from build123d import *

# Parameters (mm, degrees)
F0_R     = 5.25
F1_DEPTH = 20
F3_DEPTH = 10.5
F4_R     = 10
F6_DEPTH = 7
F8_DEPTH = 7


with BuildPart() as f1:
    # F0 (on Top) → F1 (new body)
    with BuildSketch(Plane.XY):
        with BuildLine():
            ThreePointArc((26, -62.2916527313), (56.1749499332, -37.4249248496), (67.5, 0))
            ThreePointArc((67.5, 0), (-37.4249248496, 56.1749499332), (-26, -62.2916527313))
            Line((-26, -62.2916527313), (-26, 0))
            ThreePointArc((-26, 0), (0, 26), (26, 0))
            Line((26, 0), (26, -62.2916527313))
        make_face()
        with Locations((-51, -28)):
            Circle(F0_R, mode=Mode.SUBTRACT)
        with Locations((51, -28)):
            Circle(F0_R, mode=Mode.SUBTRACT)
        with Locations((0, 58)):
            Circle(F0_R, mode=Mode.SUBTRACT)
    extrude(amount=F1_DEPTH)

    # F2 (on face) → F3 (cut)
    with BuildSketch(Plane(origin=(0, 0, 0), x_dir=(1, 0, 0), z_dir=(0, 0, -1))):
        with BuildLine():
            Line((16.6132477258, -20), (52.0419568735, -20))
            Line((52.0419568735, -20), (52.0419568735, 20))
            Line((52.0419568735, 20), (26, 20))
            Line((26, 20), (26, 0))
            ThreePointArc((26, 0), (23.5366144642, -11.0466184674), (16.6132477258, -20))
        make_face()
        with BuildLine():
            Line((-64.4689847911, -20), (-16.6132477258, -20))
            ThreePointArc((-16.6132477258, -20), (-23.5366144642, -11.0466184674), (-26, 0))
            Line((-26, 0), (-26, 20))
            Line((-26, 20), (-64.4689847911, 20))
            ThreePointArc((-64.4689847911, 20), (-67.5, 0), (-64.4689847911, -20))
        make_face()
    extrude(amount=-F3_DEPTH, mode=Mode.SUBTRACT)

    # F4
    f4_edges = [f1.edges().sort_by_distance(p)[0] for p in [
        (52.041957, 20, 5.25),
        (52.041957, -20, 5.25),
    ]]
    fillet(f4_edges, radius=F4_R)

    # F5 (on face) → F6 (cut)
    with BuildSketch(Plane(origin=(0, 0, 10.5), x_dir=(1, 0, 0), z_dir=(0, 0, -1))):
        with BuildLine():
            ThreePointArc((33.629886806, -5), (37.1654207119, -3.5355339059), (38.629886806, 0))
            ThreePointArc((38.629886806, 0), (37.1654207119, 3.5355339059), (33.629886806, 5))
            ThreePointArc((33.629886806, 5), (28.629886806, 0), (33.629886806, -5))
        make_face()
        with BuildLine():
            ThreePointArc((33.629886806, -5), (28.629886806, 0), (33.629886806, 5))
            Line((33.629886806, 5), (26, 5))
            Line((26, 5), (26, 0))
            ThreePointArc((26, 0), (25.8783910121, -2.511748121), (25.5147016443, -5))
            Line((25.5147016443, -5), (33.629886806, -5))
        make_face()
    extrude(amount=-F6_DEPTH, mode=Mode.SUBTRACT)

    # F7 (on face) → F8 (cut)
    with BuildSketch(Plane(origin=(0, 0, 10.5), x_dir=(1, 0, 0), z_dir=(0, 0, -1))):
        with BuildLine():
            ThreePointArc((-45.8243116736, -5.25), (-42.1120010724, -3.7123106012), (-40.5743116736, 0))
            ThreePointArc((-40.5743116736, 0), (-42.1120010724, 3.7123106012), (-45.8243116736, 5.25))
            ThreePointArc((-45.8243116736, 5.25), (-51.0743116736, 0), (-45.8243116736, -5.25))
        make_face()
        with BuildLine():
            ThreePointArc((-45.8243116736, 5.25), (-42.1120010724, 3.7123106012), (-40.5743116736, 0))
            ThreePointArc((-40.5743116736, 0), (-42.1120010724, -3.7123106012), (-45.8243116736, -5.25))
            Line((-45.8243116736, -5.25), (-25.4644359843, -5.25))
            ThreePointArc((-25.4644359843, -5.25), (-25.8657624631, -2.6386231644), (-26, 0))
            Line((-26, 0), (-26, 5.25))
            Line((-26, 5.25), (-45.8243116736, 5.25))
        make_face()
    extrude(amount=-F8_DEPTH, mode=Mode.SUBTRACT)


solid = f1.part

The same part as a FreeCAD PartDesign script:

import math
import FreeCAD as App
import Part
import Sketcher

V = App.Vector


def edges_at(feature, points):
    """Names of the edges that pass closest to the given points."""
    edges = feature.Shape.Edges
    near = lambda p: min(range(len(edges)), key=lambda i: edges[i].distToShape(Part.Vertex(*p))[0])
    return sorted({f"Edge{near(p) + 1}" for p in points})

doc = App.newDocument("Part")
body = doc.addObject("PartDesign::Body", "Body")

# Sketch on XY plane
sketch1 = body.newObject("Sketcher::SketchObject", "Sketch")
sketch1.AttachmentSupport = (doc.getObject("XY_Plane"), [""])
sketch1.MapMode = "FlatFace"
sketch1.addGeometry(Part.ArcOfCircle(Part.Circle(V(0, 0, 0), V(0, 0, 1), 68), math.radians(-67), math.radians(0)), False)
sketch1.addGeometry(Part.ArcOfCircle(Part.Circle(V(0, 0, 0), V(0, 0, 1), 68), math.radians(0), math.radians(247)), False)
sketch1.addGeometry(Part.LineSegment(V(-26, -62, 0), V(-26, 0, 0)), False)
sketch1.addGeometry(Part.ArcOfCircle(Part.Circle(V(0, 0, 0), V(0, 0, 1), 26), math.radians(0), math.radians(180)), False)
sketch1.addGeometry(Part.LineSegment(V(26, 0, 0), V(26, -62, 0)), False)
sketch1.addGeometry(Part.Circle(V(-51, -28, 0), V(0, 0, 1), 5), False)
sketch1.addGeometry(Part.Circle(V(51, -28, 0), V(0, 0, 1), 5), False)
sketch1.addGeometry(Part.Circle(V(0, 58, 0), V(0, 0, 1), 5), False)
sketch1.addConstraint(Sketcher.Constraint("Tangent", 0, 2, 1, 1))
sketch1.addConstraint(Sketcher.Constraint("Coincident", 1, 2, 2, 1))
sketch1.addConstraint(Sketcher.Constraint("Tangent", 2, 2, 3, 2))
sketch1.addConstraint(Sketcher.Constraint("Tangent", 3, 1, 4, 1))
sketch1.addConstraint(Sketcher.Constraint("Coincident", 4, 2, 0, 1))
sketch1.addConstraint(Sketcher.Constraint("Vertical", 2))
sketch1.addConstraint(Sketcher.Constraint("Vertical", 4))
sketch1.addConstraint(Sketcher.Constraint("Coincident", 0, 3, -1, 1))
sketch1.addConstraint(Sketcher.Constraint("Coincident", 3, 3, -1, 1))
sketch1.addConstraint(Sketcher.Constraint("Equal", 0, 1))
sketch1.addConstraint(Sketcher.Constraint("Equal", 5, 6))
sketch1.addConstraint(Sketcher.Constraint("Equal", 6, 7))
sketch1.addConstraint(Sketcher.Constraint("Symmetric", 5, 3, 6, 3, -2))
sketch1.addConstraint(Sketcher.Constraint("PointOnObject", 7, 3, -2))
sketch1.addConstraint(Sketcher.Constraint("PointOnObject", 0, 2, -1))
sketch1.addConstraint(Sketcher.Constraint("Radius", 3, 26.0))
sketch1.addConstraint(Sketcher.Constraint("Diameter", 5, 10.5))
sketch1.addConstraint(Sketcher.Constraint("Radius", 0, 67.5))
sketch1.addConstraint(Sketcher.Constraint("DistanceX", 5, 3, -1, 1, 51.0))
sketch1.addConstraint(Sketcher.Constraint("DistanceY", 5, 3, -1, 1, 28.0))
sketch1.addConstraint(Sketcher.Constraint("DistanceY", -1, 1, 7, 3, 58.0))
pad1 = body.newObject("PartDesign::Pad", "Pad")
pad1.Profile = sketch1
pad1.Length = 20

# Sketch on XY plane
sketch2 = body.newObject("Sketcher::SketchObject", "Sketch001")
sketch2.AttachmentSupport = (doc.getObject("XY_Plane"), [""])
sketch2.MapMode = "FlatFace"
sketch2.addGeometry(Part.LineSegment(V(17, 20, 0), V(52, 20, 0)), False)
sketch2.addGeometry(Part.LineSegment(V(52, 20, 0), V(52, -20, 0)), False)
sketch2.addGeometry(Part.LineSegment(V(52, -20, 0), V(26, -20, 0)), False)
sketch2.addGeometry(Part.LineSegment(V(26, -20, 0), V(26, 0, 0)), False)
sketch2.addGeometry(Part.ArcOfCircle(Part.Circle(V(0, 0, 0), V(0, 0, 1), 26), math.radians(0), math.radians(50)), False)
sketch2.addGeometry(Part.LineSegment(V(-64, 20, 0), V(-17, 20, 0)), False)
sketch2.addGeometry(Part.ArcOfCircle(Part.Circle(V(0, 0, 0), V(0, 0, 1), 26), math.radians(130), math.radians(180)), False)
sketch2.addGeometry(Part.LineSegment(V(-26, 0, 0), V(-26, -20, 0)), False)
sketch2.addGeometry(Part.LineSegment(V(-26, -20, 0), V(-64, -20, 0)), False)
sketch2.addGeometry(Part.ArcOfCircle(Part.Circle(V(0, 0, 0), V(0, 0, 1), 67), math.radians(163), math.radians(197)), False)
sketch2.addConstraint(Sketcher.Constraint("Coincident", 0, 2, 1, 1))
sketch2.addConstraint(Sketcher.Constraint("Coincident", 1, 2, 2, 1))
sketch2.addConstraint(Sketcher.Constraint("Coincident", 2, 2, 3, 1))
sketch2.addConstraint(Sketcher.Constraint("Tangent", 3, 2, 4, 1))
sketch2.addConstraint(Sketcher.Constraint("Coincident", 4, 2, 0, 1))
sketch2.addConstraint(Sketcher.Constraint("Coincident", 5, 2, 6, 1))
sketch2.addConstraint(Sketcher.Constraint("Tangent", 6, 2, 7, 1))
sketch2.addConstraint(Sketcher.Constraint("Coincident", 7, 2, 8, 1))
sketch2.addConstraint(Sketcher.Constraint("Coincident", 8, 2, 9, 2))
sketch2.addConstraint(Sketcher.Constraint("Coincident", 9, 1, 5, 1))
sketch2.addConstraint(Sketcher.Constraint("Horizontal", 0))
sketch2.addConstraint(Sketcher.Constraint("Vertical", 1))
sketch2.addConstraint(Sketcher.Constraint("Horizontal", 2))
sketch2.addConstraint(Sketcher.Constraint("Vertical", 3))
sketch2.addConstraint(Sketcher.Constraint("Horizontal", 5))
sketch2.addConstraint(Sketcher.Constraint("Vertical", 7))
sketch2.addConstraint(Sketcher.Constraint("Horizontal", 8))
sketch2.addConstraint(Sketcher.Constraint("Coincident", 4, 3, -1, 1))
sketch2.addConstraint(Sketcher.Constraint("Coincident", 6, 3, -1, 1))
sketch2.addConstraint(Sketcher.Constraint("Coincident", 9, 3, -1, 1))
sketch2.addConstraint(Sketcher.Constraint("Equal", 4, 6))
sketch2.addConstraint(Sketcher.Constraint("Horizontal", 4, 2, 5, 2))
sketch2.addConstraint(Sketcher.Constraint("Horizontal", 2, 2, 7, 2))
sketch2.addConstraint(Sketcher.Constraint("Vertical", 8, 2, 9, 1))
sketch2.addConstraint(Sketcher.Constraint("Radius", 4, 26.0))
sketch2.addConstraint(Sketcher.Constraint("Radius", 9, 67.5))
sketch2.addConstraint(Sketcher.Constraint("DistanceY", 1, 2, 1, 1, 40.0))
sketch2.addConstraint(Sketcher.Constraint("DistanceX", 0, 1, 0, 2, 35.428709))
pocket1 = body.newObject("PartDesign::Pocket", "Pocket")
pocket1.Profile = sketch2
pocket1.Length = 10.5
pocket1.Reversed = True
doc.recompute()

fillet = body.newObject("PartDesign::Fillet", "Fillet")
fillet.Base = (pocket1, edges_at(pocket1, [(52.042, 20, 5.25), (52.042, -20, 5.25)]))
fillet.Radius = 10

# Sketch on XY plane
sketch3 = body.newObject("Sketcher::SketchObject", "Sketch002")
sketch3.AttachmentSupport = (doc.getObject("XY_Plane"), [""])
sketch3.MapMode = "FlatFace"
sketch3.AttachmentOffset = App.Placement(V(0, 0, 10.5), App.Rotation())
sketch3.addGeometry(Part.ArcOfCircle(Part.Circle(V(34, 0, 0), V(0, 0, 1), 5), math.radians(0), math.radians(90)), False)
sketch3.addGeometry(Part.ArcOfCircle(Part.Circle(V(34, 0, 0), V(0, 0, 1), 5), math.radians(-90), math.radians(0)), False)
sketch3.addGeometry(Part.LineSegment(V(34, -5, 0), V(26, -5, 0)), False)
sketch3.addGeometry(Part.LineSegment(V(26, -5, 0), V(26, 0, 0)), False)
sketch3.addGeometry(Part.ArcOfCircle(Part.Circle(V(0, 0, 0), V(0, 0, 1), 26), math.radians(0), math.radians(11.09)), False)
sketch3.addGeometry(Part.LineSegment(V(26, 5, 0), V(34, 5, 0)), False)
sketch3.addConstraint(Sketcher.Constraint("Tangent", 0, 1, 1, 2))
sketch3.addConstraint(Sketcher.Constraint("Tangent", 1, 1, 2, 1))
sketch3.addConstraint(Sketcher.Constraint("Coincident", 2, 2, 3, 1))
sketch3.addConstraint(Sketcher.Constraint("Tangent", 3, 2, 4, 1))
sketch3.addConstraint(Sketcher.Constraint("Coincident", 4, 2, 5, 1))
sketch3.addConstraint(Sketcher.Constraint("Tangent", 5, 2, 0, 2))
sketch3.addConstraint(Sketcher.Constraint("Horizontal", 2))
sketch3.addConstraint(Sketcher.Constraint("Vertical", 3))
sketch3.addConstraint(Sketcher.Constraint("Horizontal", 5))
sketch3.addConstraint(Sketcher.Constraint("Coincident", 4, 3, -1, 1))
sketch3.addConstraint(Sketcher.Constraint("Equal", 0, 1))
sketch3.addConstraint(Sketcher.Constraint("PointOnObject", 0, 3, -1))
sketch3.addConstraint(Sketcher.Constraint("PointOnObject", 0, 1, -1))
sketch3.addConstraint(Sketcher.Constraint("Radius", 0, 5.0))
sketch3.addConstraint(Sketcher.Constraint("Radius", 4, 26.0))
sketch3.addConstraint(Sketcher.Constraint("DistanceX", 2, 2, 2, 1, 7.629887))
pocket2 = body.newObject("PartDesign::Pocket", "Pocket001")
pocket2.Profile = sketch3
pocket2.Length = 7
pocket2.Reversed = True

# Sketch on XY plane
sketch4 = body.newObject("Sketcher::SketchObject", "Sketch003")
sketch4.AttachmentSupport = (doc.getObject("XY_Plane"), [""])
sketch4.MapMode = "FlatFace"
sketch4.AttachmentOffset = App.Placement(V(0, 0, 10.5), App.Rotation())
sketch4.addGeometry(Part.ArcOfCircle(Part.Circle(V(-46, 0, 0), V(0, 0, 1), 5), math.radians(90), math.radians(270)), False)
sketch4.addGeometry(Part.LineSegment(V(-46, 5, 0), V(-25, 5, 0)), False)
sketch4.addGeometry(Part.ArcOfCircle(Part.Circle(V(0, 0, 0), V(0, 0, 1), 26), math.radians(168.35), math.radians(180)), False)
sketch4.addGeometry(Part.LineSegment(V(-26, 0, 0), V(-26, -5, 0)), False)
sketch4.addGeometry(Part.LineSegment(V(-26, -5, 0), V(-46, -5, 0)), False)
sketch4.addConstraint(Sketcher.Constraint("Tangent", 0, 1, 1, 1))
sketch4.addConstraint(Sketcher.Constraint("Coincident", 1, 2, 2, 1))
sketch4.addConstraint(Sketcher.Constraint("Tangent", 2, 2, 3, 1))
sketch4.addConstraint(Sketcher.Constraint("Coincident", 3, 2, 4, 1))
sketch4.addConstraint(Sketcher.Constraint("Tangent", 4, 2, 0, 2))
sketch4.addConstraint(Sketcher.Constraint("Horizontal", 1))
sketch4.addConstraint(Sketcher.Constraint("Vertical", 3))
sketch4.addConstraint(Sketcher.Constraint("Horizontal", 4))
sketch4.addConstraint(Sketcher.Constraint("Coincident", 2, 3, -1, 1))
sketch4.addConstraint(Sketcher.Constraint("PointOnObject", 0, 3, -1))
sketch4.addConstraint(Sketcher.Constraint("Radius", 2, 26.0))
sketch4.addConstraint(Sketcher.Constraint("Radius", 0, 5.25))
sketch4.addConstraint(Sketcher.Constraint("DistanceX", 4, 2, 4, 1, 19.824312))
pocket3 = body.newObject("PartDesign::Pocket", "Pocket002")
pocket3.Profile = sketch4
pocket3.Length = 7
pocket3.Reversed = True

doc.recompute()
